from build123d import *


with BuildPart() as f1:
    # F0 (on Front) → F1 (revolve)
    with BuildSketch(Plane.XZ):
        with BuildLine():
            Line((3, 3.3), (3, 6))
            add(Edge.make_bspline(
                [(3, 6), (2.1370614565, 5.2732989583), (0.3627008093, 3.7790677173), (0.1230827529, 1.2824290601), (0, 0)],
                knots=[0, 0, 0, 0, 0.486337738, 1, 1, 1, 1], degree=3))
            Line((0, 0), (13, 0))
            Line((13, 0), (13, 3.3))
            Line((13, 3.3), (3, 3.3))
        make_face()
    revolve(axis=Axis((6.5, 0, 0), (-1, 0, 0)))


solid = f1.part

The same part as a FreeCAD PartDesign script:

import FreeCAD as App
import Part
import Sketcher

V = App.Vector
Q = App.Units.Quantity

doc = App.newDocument("Part")
body = doc.addObject("PartDesign::Body", "Body")

# Sketch on XZ plane
sketch1 = body.newObject("Sketcher::SketchObject", "Sketch")
sketch1.AttachmentSupport = (doc.getObject("XZ_Plane"), [""])
sketch1.MapMode = "FlatFace"
sketch1.addGeometry([
    Part.LineSegment(V(3, 3.3, 0), V(3, 6, 0)),  # 0
    Part.BSplineCurve([V(3, 6, 0), V(2.137061, 5.273299, 0), V(0.362701, 3.779068, 0), V(0.123083, 1.282429, 0), V(0, 0, 0)], [4, 1, 4], [0, 0.486337738, 1], False, 3, [1, 1, 1, 1, 1], False),  # 1
    Part.LineSegment(V(0, 0, 0), V(13, 0, 0)),  # 2
    Part.LineSegment(V(13, 0, 0), V(13, 3.3, 0)),  # 3
    Part.LineSegment(V(13, 3.3, 0), V(3, 3.3, 0)),  # 4
], False)
sketch1.addConstraint([
    Sketcher.Constraint("Block", 1),
    Sketcher.Constraint("Coincident", 0, 2, 1, 1),
    Sketcher.Constraint("Coincident", 1, 2, 2, 1),
    Sketcher.Constraint("Coincident", 2, 2, 3, 1),
    Sketcher.Constraint("Coincident", 3, 2, 4, 1),
    Sketcher.Constraint("Coincident", 4, 2, 0, 1),
    Sketcher.Constraint("Vertical", 0),
    Sketcher.Constraint("Horizontal", 2),
    Sketcher.Constraint("Vertical", 3),
    Sketcher.Constraint("Horizontal", 4),
    Sketcher.Constraint("DistanceX", 2, 1, 2, 2, Q("13 mm")),
    Sketcher.Constraint("DistanceY", 0, 1, 0, 2, Q("2.7 mm")),
])
revolution = body.newObject("PartDesign::Revolution", "Revolution")
revolution.Profile = sketch1
revolution.ReferenceAxis = (sketch1, ["H_Axis"])
revolution.Angle = 360

doc.recompute()
